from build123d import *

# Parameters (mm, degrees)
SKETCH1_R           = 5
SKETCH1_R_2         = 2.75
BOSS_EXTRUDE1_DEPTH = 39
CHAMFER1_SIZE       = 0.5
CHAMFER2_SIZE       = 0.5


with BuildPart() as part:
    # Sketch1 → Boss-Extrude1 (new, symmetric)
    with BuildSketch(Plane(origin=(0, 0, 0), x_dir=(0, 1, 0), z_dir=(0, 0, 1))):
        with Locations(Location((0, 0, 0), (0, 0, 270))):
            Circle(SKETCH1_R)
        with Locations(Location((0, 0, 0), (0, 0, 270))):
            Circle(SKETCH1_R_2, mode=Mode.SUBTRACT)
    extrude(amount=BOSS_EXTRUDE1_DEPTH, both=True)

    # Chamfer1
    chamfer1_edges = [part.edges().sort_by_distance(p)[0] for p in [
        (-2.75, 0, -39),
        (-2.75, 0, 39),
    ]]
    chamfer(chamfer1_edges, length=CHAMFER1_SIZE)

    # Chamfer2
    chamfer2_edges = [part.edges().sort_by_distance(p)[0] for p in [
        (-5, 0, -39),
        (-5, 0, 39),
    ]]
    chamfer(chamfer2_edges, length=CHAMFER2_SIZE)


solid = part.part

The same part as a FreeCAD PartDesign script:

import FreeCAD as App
import Part
import Sketcher

V = App.Vector
Q = App.Units.Quantity


def edges_at(feature, points):
    """Names of the edges that pass closest to the given points."""
    edges = feature.Shape.Edges
    near = lambda p: min(range(len(edges)), key=lambda i: edges[i].distToShape(Part.Vertex(*p))[0])
    return sorted({f"Edge{near(p) + 1}" for p in points})

doc = App.newDocument("Part")
body = doc.addObject("PartDesign::Body", "Body")

sketch1 = body.newObject("Sketcher::SketchObject", "Sketch")
sketch1.AttachmentSupport = (doc.getObject("XY_Plane"), [""])
sketch1.MapMode = "FlatFace"
sketch1.addGeometry(Part.Circle(V(0, 0, 0), V(0, 0, 1), 5), False)
sketch1.addGeometry(Part.Circle(V(0, 0, 0), V(0, 0, 1), 2.8), False)
sketch1.addConstraint(Sketcher.Constraint("Coincident", 0, 3, -1, 1))
sketch1.addConstraint(Sketcher.Constraint("Coincident", 1, 3, -1, 1))
sketch1.addConstraint(Sketcher.Constraint("Diameter", 0, Q("10 mm")))
sketch1.addConstraint(Sketcher.Constraint("Diameter", 1, Q("5.5 mm")))
pad1 = body.newObject("PartDesign::Pad", "Pad")
pad1.Profile = sketch1
pad1.Length = 78
pad1.Midplane = True
doc.recompute()

chamfer = body.newObject("PartDesign::Chamfer", "Chamfer")
chamfer.Base = (pad1, edges_at(pad1, [(-2.75, 0, -39), (-2.75, 0, 39)]))
chamfer.Size = 0.5
doc.recompute()

chamfer2 = body.newObject("PartDesign::Chamfer", "Chamfer001")
chamfer2.Base = (chamfer, edges_at(chamfer, [(-5, 0, -39), (-5, 0, 39)]))
chamfer2.Size = 0.5

doc.recompute()
